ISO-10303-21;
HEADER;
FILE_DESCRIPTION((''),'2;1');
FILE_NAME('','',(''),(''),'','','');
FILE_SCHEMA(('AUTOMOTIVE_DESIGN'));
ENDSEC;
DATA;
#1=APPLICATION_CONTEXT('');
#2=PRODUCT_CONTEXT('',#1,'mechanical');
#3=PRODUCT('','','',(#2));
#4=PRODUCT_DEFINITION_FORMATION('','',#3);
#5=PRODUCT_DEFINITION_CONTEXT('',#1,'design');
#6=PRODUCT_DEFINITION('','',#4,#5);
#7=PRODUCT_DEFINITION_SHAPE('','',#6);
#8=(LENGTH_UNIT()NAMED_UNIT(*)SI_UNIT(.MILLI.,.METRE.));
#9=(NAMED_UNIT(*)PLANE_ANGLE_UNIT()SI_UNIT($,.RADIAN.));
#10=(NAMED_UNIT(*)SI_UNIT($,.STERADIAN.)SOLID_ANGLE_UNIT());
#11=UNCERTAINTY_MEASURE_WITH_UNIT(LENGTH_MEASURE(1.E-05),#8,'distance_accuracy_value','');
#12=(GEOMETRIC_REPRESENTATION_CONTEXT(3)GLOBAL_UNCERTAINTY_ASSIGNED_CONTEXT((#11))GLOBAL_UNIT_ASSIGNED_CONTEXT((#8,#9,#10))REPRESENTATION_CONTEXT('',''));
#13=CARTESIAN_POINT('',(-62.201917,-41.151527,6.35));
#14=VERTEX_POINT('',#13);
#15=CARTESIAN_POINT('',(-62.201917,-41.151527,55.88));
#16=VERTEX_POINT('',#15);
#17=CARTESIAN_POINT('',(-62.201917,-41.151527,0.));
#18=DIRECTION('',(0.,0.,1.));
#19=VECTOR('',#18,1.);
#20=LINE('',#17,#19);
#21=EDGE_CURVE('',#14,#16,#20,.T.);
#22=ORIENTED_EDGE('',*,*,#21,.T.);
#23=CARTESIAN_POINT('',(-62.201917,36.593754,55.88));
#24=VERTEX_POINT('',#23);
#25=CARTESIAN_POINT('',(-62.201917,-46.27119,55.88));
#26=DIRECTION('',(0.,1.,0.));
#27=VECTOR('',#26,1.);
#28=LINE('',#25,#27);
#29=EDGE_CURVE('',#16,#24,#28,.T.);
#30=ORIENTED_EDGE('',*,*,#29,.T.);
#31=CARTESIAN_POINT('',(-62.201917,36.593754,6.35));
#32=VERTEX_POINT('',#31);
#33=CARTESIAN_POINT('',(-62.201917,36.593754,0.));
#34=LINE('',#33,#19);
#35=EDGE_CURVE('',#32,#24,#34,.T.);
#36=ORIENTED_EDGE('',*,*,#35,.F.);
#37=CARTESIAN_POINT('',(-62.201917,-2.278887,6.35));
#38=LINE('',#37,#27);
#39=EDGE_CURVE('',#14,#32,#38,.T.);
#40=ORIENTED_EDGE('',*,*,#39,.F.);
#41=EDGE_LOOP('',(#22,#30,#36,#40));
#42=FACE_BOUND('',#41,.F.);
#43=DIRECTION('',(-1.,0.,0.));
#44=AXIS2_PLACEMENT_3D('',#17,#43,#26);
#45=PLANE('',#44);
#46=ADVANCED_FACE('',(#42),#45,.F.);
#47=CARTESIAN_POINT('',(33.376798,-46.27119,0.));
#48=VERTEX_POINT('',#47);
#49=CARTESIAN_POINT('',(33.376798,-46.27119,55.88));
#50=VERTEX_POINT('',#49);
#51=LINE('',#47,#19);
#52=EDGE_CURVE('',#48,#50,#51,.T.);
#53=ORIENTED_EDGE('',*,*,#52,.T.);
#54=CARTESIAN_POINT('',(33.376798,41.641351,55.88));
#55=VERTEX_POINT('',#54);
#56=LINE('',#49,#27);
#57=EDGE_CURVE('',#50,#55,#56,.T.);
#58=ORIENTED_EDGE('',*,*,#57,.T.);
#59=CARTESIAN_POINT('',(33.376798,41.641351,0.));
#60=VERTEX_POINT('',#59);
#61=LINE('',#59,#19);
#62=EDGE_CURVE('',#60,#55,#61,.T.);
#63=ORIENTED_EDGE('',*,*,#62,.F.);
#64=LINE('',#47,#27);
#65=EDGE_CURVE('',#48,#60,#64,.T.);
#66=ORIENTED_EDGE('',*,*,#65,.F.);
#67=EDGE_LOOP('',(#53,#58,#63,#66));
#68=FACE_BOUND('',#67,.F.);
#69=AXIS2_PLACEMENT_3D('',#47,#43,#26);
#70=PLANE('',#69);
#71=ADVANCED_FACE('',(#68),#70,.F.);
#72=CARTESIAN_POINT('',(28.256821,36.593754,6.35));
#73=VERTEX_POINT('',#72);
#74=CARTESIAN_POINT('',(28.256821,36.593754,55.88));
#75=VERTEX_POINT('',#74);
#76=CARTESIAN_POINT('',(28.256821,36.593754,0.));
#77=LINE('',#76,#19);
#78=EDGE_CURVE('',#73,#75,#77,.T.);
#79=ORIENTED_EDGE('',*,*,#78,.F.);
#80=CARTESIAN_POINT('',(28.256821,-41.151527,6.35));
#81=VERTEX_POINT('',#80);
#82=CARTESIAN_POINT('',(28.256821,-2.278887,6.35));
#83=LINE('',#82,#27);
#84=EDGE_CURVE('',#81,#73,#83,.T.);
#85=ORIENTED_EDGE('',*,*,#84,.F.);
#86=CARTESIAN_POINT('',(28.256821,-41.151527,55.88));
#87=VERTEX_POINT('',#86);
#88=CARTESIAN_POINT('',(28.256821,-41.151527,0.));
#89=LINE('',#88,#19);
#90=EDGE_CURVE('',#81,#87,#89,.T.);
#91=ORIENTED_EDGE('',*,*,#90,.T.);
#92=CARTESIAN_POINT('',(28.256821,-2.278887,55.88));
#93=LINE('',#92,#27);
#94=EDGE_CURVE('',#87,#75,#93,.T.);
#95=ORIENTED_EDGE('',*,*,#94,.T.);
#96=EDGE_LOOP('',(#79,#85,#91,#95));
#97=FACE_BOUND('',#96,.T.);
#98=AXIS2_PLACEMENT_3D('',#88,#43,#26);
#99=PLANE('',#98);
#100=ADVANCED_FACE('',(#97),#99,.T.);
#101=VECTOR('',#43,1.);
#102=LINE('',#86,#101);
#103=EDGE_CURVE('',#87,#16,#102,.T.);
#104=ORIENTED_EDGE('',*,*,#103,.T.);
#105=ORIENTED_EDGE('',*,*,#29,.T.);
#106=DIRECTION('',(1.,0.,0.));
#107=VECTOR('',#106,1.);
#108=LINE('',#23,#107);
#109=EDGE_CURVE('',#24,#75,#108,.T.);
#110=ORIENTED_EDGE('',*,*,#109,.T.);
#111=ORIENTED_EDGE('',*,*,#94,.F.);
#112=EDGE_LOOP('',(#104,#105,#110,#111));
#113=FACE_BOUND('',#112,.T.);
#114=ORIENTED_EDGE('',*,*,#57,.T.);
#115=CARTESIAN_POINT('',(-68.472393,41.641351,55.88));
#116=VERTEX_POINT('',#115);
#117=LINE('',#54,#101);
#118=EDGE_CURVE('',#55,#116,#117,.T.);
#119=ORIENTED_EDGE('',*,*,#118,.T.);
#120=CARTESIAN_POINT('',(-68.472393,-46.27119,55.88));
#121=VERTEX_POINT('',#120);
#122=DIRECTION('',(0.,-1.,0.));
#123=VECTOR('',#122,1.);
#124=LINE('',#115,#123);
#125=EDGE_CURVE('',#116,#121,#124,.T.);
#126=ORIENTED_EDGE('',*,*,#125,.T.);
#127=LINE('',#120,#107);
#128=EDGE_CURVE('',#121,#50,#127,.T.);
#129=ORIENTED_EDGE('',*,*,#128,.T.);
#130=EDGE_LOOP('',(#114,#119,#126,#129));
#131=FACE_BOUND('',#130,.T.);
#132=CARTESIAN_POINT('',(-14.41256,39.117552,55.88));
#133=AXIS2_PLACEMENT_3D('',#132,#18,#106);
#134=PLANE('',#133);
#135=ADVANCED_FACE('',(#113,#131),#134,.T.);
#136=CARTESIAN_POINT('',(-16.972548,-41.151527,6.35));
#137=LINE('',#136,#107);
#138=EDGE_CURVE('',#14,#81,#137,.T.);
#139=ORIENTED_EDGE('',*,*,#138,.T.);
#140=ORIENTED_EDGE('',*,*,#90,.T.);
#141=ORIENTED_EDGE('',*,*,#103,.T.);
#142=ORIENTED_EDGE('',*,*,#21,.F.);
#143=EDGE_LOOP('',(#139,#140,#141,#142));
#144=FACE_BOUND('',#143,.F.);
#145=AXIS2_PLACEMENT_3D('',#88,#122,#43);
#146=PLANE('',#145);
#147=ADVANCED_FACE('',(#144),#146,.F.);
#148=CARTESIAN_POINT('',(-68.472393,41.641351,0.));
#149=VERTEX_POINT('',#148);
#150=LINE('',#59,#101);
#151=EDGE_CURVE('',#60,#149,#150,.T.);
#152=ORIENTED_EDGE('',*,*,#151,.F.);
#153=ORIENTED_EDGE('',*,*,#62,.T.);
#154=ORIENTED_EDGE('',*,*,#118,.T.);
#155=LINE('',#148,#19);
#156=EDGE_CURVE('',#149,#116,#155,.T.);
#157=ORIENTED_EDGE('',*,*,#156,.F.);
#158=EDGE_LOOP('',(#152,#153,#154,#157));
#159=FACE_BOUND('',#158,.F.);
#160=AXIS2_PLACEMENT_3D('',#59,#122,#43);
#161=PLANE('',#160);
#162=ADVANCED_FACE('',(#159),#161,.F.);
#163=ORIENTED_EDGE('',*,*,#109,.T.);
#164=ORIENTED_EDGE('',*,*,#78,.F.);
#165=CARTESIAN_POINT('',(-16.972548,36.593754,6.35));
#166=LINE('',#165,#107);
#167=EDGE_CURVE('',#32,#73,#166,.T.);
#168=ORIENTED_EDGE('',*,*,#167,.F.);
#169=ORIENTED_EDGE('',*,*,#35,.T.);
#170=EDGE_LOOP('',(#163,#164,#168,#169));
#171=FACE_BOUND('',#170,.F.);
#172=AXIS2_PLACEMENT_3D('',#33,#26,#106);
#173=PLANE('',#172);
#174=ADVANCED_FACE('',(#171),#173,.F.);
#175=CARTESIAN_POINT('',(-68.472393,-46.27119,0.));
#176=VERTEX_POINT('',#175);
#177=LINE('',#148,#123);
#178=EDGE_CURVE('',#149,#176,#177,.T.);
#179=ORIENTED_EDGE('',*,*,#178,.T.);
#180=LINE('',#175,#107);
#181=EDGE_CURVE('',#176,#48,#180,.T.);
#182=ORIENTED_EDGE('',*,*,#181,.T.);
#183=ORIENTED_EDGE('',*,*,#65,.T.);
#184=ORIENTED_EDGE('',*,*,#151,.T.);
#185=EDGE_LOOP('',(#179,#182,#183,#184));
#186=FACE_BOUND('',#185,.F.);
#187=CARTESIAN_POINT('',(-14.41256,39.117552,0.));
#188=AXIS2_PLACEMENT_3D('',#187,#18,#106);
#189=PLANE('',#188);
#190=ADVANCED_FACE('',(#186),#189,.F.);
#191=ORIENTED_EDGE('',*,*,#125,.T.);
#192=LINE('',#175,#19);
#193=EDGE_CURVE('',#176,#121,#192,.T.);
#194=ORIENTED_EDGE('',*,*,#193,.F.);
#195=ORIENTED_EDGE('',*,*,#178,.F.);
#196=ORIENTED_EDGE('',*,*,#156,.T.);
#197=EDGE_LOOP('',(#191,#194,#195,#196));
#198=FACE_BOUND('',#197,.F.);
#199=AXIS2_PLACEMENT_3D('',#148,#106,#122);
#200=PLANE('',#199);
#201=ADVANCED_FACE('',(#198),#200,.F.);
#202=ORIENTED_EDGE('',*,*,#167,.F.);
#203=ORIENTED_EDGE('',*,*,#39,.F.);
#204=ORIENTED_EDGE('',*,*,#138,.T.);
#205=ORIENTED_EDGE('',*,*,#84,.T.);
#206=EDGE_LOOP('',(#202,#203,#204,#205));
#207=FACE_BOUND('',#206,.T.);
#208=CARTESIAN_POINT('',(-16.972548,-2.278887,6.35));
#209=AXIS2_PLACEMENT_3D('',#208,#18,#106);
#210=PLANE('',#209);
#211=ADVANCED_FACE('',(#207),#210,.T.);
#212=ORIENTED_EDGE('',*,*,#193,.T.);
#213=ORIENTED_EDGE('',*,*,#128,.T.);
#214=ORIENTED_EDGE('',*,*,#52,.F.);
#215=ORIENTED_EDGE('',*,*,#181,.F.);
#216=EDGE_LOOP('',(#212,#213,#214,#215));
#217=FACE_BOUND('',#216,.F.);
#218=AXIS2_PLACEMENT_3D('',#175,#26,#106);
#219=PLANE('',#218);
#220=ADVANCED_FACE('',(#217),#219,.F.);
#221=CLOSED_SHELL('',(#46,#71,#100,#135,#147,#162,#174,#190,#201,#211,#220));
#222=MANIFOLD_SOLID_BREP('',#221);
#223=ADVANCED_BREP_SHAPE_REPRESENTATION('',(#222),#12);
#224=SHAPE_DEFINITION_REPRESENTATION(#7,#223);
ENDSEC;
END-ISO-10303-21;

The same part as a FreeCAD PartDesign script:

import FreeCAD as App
import Part
import Sketcher

V = App.Vector
Q = App.Units.Quantity

doc = App.newDocument("Part")
body = doc.addObject("PartDesign::Body", "Body")

# Sketch on XY plane
sketch1 = body.newObject("Sketcher::SketchObject", "Sketch")
sketch1.AttachmentSupport = (doc.getObject("XY_Plane"), [""])
sketch1.MapMode = "FlatFace"
sketch1.addGeometry(Part.LineSegment(V(-62, 37, 0), V(-62, -41, 0)), False)
sketch1.addGeometry(Part.LineSegment(V(-62, -41, 0), V(28, -41, 0)), False)
sketch1.addGeometry(Part.LineSegment(V(28, -41, 0), V(28, 37, 0)), False)
sketch1.addGeometry(Part.LineSegment(V(28, 37, 0), V(-62, 37, 0)), False)
sketch1.addConstraint(Sketcher.Constraint("Coincident", 0, 2, 1, 1))
sketch1.addConstraint(Sketcher.Constraint("Coincident", 1, 2, 2, 1))
sketch1.addConstraint(Sketcher.Constraint("Coincident", 2, 2, 3, 1))
sketch1.addConstraint(Sketcher.Constraint("Coincident", 3, 2, 0, 1))
sketch1.addConstraint(Sketcher.Constraint("Vertical", 0))
sketch1.addConstraint(Sketcher.Constraint("Horizontal", 1))
sketch1.addConstraint(Sketcher.Constraint("Vertical", 2))
sketch1.addConstraint(Sketcher.Constraint("Horizontal", 3))
sketch1.addConstraint(Sketcher.Constraint("DistanceY", 0, 2, 0, 1, Q("77.745281 mm")))
sketch1.addConstraint(Sketcher.Constraint("DistanceX", 1, 1, 1, 2, Q("90.458738 mm")))
sketch1.addConstraint(Sketcher.Constraint("DistanceX", -1, 1, 1, 2, Q("28.256821 mm")))
sketch1.addConstraint(Sketcher.Constraint("DistanceY", 0, 2, -1, 1, Q("41.151527 mm")))
pad1 = body.newObject("PartDesign::Pad", "Pad")
pad1.Profile = sketch1
pad1.Length = Q("0.25 in")

# Sketch on XY plane
sketch2 = body.newObject("Sketcher::SketchObject", "Sketch001")
sketch2.AttachmentSupport = (doc.getObject("XY_Plane"), [""])
sketch2.MapMode = "FlatFace"
sketch2.addGeometry(Part.LineSegment(V(33, 42, 0), V(-68, 42, 0)), False)
sketch2.addGeometry(Part.LineSegment(V(-68, 42, 0), V(-68, -46, 0)), False)
sketch2.addGeometry(Part.LineSegment(V(-68, -46, 0), V(33, -46, 0)), False)
sketch2.addGeometry(Part.LineSegment(V(33, -46, 0), V(33, 42, 0)), False)
sketch2.addGeometry(Part.LineSegment(V(-62, 37, 0), V(28, 37, 0)), False)
sketch2.addGeometry(Part.LineSegment(V(28, 37, 0), V(28, -41, 0)), False)
sketch2.addGeometry(Part.LineSegment(V(28, -41, 0), V(-62, -41, 0)), False)
sketch2.addGeometry(Part.LineSegment(V(-62, -41, 0), V(-62, 37, 0)), False)
sketch2.addConstraint(Sketcher.Constraint("Coincident", 0, 2, 1, 1))
sketch2.addConstraint(Sketcher.Constraint("Coincident", 1, 2, 2, 1))
sketch2.addConstraint(Sketcher.Constraint("Coincident", 2, 2, 3, 1))
sketch2.addConstraint(Sketcher.Constraint("Coincident", 3, 2, 0, 1))
sketch2.addConstraint(Sketcher.Constraint("Coincident", 4, 2, 5, 1))
sketch2.addConstraint(Sketcher.Constraint("Coincident", 5, 2, 6, 1))
sketch2.addConstraint(Sketcher.Constraint("Coincident", 6, 2, 7, 1))
sketch2.addConstraint(Sketcher.Constraint("Coincident", 7, 2, 4, 1))
sketch2.addConstraint(Sketcher.Constraint("Horizontal", 0))
sketch2.addConstraint(Sketcher.Constraint("Vertical", 1))
sketch2.addConstraint(Sketcher.Constraint("Horizontal", 2))
sketch2.addConstraint(Sketcher.Constraint("Vertical", 3))
sketch2.addConstraint(Sketcher.Constraint("Horizontal", 4))
sketch2.addConstraint(Sketcher.Constraint("Vertical", 5))
sketch2.addConstraint(Sketcher.Constraint("Horizontal", 6))
sketch2.addConstraint(Sketcher.Constraint("Vertical", 7))
sketch2.addConstraint(Sketcher.Constraint("DistanceX", 0, 2, 0, 1, Q("101.849191 mm")))
sketch2.addConstraint(Sketcher.Constraint("DistanceY", 1, 2, 1, 1, Q("87.912541 mm")))
sketch2.addConstraint(Sketcher.Constraint("DistanceY", 5, 2, 5, 1, Q("77.745281 mm")))
sketch2.addConstraint(Sketcher.Constraint("DistanceX", -1, 1, 2, 2, Q("33.376798 mm")))
sketch2.addConstraint(Sketcher.Constraint("DistanceX", 4, 1, 4, 2, Q("90.458738 mm")))
sketch2.addConstraint(Sketcher.Constraint("DistanceY", -1, 1, 0, 2, Q("41.641351 mm")))
sketch2.addConstraint(Sketcher.Constraint("DistanceX", -1, 1, 4, 2, Q("28.256821 mm")))
sketch2.addConstraint(Sketcher.Constraint("DistanceY", 5, 2, 3, 2, Q("82.792878 mm")))
pad2 = body.newObject("PartDesign::Pad", "Pad001")
pad2.Profile = sketch2
pad2.Length = Q("2.2 in")

doc.recompute()
